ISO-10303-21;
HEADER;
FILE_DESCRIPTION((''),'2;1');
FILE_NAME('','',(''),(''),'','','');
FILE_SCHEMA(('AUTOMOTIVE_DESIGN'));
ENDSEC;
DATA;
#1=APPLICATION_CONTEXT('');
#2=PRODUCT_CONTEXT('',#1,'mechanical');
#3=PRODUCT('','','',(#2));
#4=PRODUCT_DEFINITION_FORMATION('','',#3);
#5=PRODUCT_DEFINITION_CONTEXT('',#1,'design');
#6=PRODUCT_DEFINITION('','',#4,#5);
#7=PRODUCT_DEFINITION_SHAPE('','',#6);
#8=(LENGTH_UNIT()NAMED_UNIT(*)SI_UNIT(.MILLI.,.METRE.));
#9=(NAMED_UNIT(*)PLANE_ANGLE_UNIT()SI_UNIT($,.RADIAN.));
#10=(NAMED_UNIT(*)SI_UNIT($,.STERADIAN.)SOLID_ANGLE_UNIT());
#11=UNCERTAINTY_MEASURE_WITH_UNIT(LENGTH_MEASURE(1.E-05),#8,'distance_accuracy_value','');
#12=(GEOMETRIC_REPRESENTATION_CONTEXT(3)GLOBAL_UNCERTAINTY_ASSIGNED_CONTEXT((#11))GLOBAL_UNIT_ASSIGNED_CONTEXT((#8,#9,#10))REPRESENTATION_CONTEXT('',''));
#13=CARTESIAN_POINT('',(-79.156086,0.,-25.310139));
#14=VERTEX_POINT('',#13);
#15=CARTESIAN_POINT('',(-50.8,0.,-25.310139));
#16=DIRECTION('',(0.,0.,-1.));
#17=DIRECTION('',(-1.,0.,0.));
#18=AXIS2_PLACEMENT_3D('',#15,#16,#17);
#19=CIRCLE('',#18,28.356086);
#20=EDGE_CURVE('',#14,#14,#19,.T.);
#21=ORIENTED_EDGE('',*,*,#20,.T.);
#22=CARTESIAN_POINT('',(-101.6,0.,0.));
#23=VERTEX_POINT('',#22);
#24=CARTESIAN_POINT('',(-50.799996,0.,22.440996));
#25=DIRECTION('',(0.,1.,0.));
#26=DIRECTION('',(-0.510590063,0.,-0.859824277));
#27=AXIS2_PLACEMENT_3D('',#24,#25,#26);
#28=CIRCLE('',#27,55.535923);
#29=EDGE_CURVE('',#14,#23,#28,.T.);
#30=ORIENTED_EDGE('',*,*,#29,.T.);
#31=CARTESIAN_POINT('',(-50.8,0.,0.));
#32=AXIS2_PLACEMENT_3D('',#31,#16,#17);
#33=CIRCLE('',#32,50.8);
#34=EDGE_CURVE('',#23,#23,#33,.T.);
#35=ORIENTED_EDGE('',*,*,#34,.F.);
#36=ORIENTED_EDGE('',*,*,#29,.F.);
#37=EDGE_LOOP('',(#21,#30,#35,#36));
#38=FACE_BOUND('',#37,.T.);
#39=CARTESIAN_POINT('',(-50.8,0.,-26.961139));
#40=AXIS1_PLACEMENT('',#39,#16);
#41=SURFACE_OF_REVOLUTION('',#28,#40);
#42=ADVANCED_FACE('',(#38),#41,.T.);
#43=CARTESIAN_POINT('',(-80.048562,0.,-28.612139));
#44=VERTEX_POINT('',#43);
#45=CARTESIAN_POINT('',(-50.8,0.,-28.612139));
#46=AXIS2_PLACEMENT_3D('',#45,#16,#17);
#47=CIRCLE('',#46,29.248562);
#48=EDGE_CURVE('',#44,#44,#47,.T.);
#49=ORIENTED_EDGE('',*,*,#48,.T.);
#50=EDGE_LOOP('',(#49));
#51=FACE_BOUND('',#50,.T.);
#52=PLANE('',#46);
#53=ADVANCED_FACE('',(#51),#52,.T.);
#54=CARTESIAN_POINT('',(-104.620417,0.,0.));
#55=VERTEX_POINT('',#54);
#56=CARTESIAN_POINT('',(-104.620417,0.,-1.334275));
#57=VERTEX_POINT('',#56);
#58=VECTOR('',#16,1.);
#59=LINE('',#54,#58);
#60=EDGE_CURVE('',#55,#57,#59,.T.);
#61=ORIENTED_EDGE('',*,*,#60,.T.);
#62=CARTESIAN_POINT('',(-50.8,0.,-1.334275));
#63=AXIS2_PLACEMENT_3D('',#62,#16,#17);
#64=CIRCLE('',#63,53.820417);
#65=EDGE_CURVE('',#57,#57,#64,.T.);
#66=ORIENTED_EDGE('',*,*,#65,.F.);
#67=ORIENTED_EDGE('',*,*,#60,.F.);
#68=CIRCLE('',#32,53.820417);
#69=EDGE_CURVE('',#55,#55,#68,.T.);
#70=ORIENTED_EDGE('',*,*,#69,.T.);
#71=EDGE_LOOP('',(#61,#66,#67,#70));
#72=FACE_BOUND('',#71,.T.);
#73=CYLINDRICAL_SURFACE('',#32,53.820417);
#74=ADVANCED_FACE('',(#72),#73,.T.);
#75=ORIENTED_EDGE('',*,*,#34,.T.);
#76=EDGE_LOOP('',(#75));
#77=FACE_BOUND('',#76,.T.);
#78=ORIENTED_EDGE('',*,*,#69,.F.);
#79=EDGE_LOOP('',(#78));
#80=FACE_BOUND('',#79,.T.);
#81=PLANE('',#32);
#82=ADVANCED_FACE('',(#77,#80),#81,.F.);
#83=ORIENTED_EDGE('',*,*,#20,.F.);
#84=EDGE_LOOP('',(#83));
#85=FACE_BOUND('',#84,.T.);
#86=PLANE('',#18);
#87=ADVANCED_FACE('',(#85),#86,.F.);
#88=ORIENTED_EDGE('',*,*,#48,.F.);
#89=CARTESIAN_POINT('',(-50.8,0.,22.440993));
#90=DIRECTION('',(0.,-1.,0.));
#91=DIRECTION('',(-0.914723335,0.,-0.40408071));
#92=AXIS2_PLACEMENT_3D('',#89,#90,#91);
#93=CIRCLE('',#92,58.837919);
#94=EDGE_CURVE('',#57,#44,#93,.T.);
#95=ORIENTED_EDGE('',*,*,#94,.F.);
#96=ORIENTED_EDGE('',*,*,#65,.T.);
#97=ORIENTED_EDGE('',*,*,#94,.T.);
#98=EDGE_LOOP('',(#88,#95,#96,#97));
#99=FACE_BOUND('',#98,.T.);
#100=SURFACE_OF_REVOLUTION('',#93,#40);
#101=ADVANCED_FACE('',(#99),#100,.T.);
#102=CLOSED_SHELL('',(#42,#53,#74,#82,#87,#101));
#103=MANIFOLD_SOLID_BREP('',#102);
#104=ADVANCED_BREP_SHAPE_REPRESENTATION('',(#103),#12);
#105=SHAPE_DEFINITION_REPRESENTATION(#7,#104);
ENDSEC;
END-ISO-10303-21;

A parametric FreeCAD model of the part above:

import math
import FreeCAD as App
import Part
import Sketcher

V = App.Vector
Q = App.Units.Quantity

doc = App.newDocument("Part")
body = doc.addObject("PartDesign::Body", "Body")

# Sketch on XZ plane
sketch1 = body.newObject("Sketcher::SketchObject", "Sketch")
sketch1.AttachmentSupport = (doc.getObject("XZ_Plane"), [""])
sketch1.MapMode = "FlatFace"
sketch1.addGeometry(Part.ArcOfCircle(Part.Circle(V(-50.8, 22.4, 0), V(0, 0, 1), 55.5), math.radians(-156), math.radians(-121)), False)
sketch1.addGeometry(Part.LineSegment(V(-101.6, 0, 0), V(-104.6, 0, 0)), False)
sketch1.addGeometry(Part.LineSegment(V(-104.6, 0, 0), V(-104.6, -1.3, 0)), False)
sketch1.addGeometry(Part.ArcOfCircle(Part.Circle(V(-50.8, 22.4, 0), V(0, 0, 1), 58.8), math.radians(-156), math.radians(-120)), False)
sketch1.addGeometry(Part.LineSegment(V(-80, -28.6, 0), V(-50.8, -28.6, 0)), False)
sketch1.addGeometry(Part.LineSegment(V(-50.8, -28.6, 0), V(-50.8, -25.3, 0)), False)
sketch1.addGeometry(Part.LineSegment(V(-50.8, -25.3, 0), V(-79.2, -25.3, 0)), False)
sketch1.addGeometry(Part.LineSegment(V(-50.8, 22.4, 0), V(-50.8, -28.6, 0)), True)  # axis
sketch1.addConstraint(Sketcher.Constraint("Coincident", 0, 1, 1, 1))
sketch1.addConstraint(Sketcher.Constraint("Coincident", 1, 2, 2, 1))
sketch1.addConstraint(Sketcher.Constraint("Coincident", 2, 2, 3, 1))
sketch1.addConstraint(Sketcher.Constraint("Coincident", 3, 2, 4, 1))
sketch1.addConstraint(Sketcher.Constraint("Coincident", 4, 2, 5, 1))
sketch1.addConstraint(Sketcher.Constraint("Coincident", 5, 2, 6, 1))
sketch1.addConstraint(Sketcher.Constraint("Coincident", 6, 2, 0, 2))
sketch1.addConstraint(Sketcher.Constraint("Horizontal", 1))
sketch1.addConstraint(Sketcher.Constraint("Vertical", 2))
sketch1.addConstraint(Sketcher.Constraint("Horizontal", 4))
sketch1.addConstraint(Sketcher.Constraint("Vertical", 5))
sketch1.addConstraint(Sketcher.Constraint("Horizontal", 6))
sketch1.addConstraint(Sketcher.Constraint("Vertical", 7))
sketch1.addConstraint(Sketcher.Constraint("Coincident", 3, 3, 0, 3))
sketch1.addConstraint(Sketcher.Constraint("Coincident", 7, 1, 0, 3))
sketch1.addConstraint(Sketcher.Constraint("Coincident", 7, 2, 4, 2))
sketch1.addConstraint(Sketcher.Constraint("PointOnObject", 0, 1, -1))
sketch1.addConstraint(Sketcher.Constraint("DistanceX", 0, 3, -1, 1, Q("1.9999998 in")))
sketch1.addConstraint(Sketcher.Constraint("DistanceX", 0, 1, -1, 1, Q("4 in")))
sketch1.addConstraint(Sketcher.Constraint("DistanceY", 5, 1, 5, 2, Q("0.13 in")))
sketch1.addConstraint(Sketcher.Constraint("Radius", 3, 58.837919))
sketch1.addConstraint(Sketcher.Constraint("Radius", 0, 55.535923))
sketch1.addConstraint(Sketcher.Constraint("DistanceX", 1, 2, 1, 1, 3.020417))
sketch1.addConstraint(Sketcher.Constraint("DistanceX", 4, 1, 4, 2, 29.248562))
revolution = body.newObject("PartDesign::Revolution", "Revolution")
revolution.Profile = sketch1
revolution.ReferenceAxis = (sketch1, ["Axis0"])
revolution.Angle = 360

doc.recompute()
